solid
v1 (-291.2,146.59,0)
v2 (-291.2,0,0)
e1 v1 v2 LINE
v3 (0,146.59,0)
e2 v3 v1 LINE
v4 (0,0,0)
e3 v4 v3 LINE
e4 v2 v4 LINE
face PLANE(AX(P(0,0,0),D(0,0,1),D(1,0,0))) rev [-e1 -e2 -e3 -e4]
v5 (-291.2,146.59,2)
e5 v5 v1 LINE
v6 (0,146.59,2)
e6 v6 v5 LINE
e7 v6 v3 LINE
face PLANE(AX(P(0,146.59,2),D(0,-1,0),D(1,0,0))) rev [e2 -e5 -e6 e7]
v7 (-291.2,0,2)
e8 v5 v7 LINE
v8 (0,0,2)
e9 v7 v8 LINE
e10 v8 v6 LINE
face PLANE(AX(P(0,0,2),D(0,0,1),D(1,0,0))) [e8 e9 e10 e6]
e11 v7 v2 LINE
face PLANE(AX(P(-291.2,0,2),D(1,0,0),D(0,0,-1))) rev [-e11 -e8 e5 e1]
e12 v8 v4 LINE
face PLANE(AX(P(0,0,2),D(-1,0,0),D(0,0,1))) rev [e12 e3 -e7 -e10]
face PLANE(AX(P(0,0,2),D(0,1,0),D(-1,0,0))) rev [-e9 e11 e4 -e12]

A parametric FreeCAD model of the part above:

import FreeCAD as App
import Part
import Sketcher
from FreeCAD import Vector


def add_polygon(sketch, points):
    """Adds a closed chain of lines whose ends are joined by coincident constraints."""
    first, n = sketch.GeometryCount, len(points)
    for a, b in zip(points, points[1:] + points[:1]):
        sketch.addGeometry(Part.LineSegment(App.Vector(*a, 0), App.Vector(*b, 0)), False)
    for i in range(n):
        sketch.addConstraint(Sketcher.Constraint("Coincident", first + i, 2, first + (i + 1) % n, 1))

doc = App.newDocument("Part")
body = doc.addObject("PartDesign::Body", "Body")

sketch1 = body.newObject("Sketcher::SketchObject", "Sketch")
sketch1.AttachmentSupport = (doc.getObject("XY_Plane"), [""])
sketch1.MapMode = "FlatFace"
add_polygon(sketch1, [(-291, 147), (-291, 0), (0, 0), (0, 147)])
sketch1.addConstraint([
    Sketcher.Constraint("Vertical", 0),
    Sketcher.Constraint("Horizontal", 1),
    Sketcher.Constraint("Vertical", 2),
    Sketcher.Constraint("Horizontal", 3),
    Sketcher.Constraint("Coincident", 1, 2, -1, 1),
    Sketcher.Constraint("DistanceX", 1, 1, 1, 2, 291.2),
    Sketcher.Constraint("DistanceY", 0, 2, 0, 1, 146.59),
])
pad1 = body.newObject("PartDesign::Pad", "Pad")
pad1.Profile = sketch1
pad1.Length = 2

doc.recompute()
